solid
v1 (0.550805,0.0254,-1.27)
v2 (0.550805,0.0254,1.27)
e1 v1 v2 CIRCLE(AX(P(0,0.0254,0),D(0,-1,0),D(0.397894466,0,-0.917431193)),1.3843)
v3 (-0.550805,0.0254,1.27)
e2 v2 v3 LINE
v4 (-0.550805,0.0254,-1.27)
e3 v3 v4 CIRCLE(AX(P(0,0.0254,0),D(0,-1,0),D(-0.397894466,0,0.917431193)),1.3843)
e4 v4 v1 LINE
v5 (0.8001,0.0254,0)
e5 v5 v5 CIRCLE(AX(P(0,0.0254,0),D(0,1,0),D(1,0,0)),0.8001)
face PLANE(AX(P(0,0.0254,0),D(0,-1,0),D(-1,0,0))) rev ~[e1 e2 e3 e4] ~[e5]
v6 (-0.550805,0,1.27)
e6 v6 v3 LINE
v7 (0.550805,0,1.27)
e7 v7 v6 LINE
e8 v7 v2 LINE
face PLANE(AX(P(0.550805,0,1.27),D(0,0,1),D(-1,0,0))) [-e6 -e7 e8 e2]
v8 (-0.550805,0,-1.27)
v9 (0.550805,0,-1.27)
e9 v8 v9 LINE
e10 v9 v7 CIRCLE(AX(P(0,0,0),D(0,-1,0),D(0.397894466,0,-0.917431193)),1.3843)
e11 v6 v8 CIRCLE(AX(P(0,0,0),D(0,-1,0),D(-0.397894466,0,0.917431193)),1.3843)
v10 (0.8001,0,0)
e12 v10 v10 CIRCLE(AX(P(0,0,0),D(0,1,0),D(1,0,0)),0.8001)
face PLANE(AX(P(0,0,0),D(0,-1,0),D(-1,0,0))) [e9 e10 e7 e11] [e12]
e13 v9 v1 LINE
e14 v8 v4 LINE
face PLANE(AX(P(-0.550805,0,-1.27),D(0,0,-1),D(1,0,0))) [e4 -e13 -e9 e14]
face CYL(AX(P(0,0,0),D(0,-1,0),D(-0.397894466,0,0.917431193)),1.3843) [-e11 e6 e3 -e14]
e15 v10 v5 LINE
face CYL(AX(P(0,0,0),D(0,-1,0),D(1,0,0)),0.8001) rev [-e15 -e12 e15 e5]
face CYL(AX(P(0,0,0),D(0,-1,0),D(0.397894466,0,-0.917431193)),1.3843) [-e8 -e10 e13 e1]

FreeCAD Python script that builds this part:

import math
import FreeCAD as App
import Part
import Sketcher
from FreeCAD import Vector
Q = App.Units.Quantity

doc = App.newDocument("Part")
body = doc.addObject("PartDesign::Body", "Body")

sketch1 = body.newObject("Sketcher::SketchObject", "Sketch")
sketch1.AttachmentSupport = (doc.getObject("XZ_Plane"), [""])
sketch1.MapMode = "FlatFace"
sketch1.addGeometry([
    Part.LineSegment(Vector(0.6, -1.3, 0), Vector(-0.6, -1.3, 0)),
    Part.ArcOfCircle(Part.Circle(Vector(0, 0, 0), Vector(0, 0, 1), 1.4), math.radians(113), math.radians(247)),
    Part.LineSegment(Vector(-0.6, 1.3, 0), Vector(0.6, 1.3, 0)),
    Part.ArcOfCircle(Part.Circle(Vector(0, 0, 0), Vector(0, 0, 1), 1.4), math.radians(-67), math.radians(67)),
    Part.Circle(Vector(0, 0, 0), Vector(0, 0, 1), 0.8),
], False)
sketch1.addConstraint([
    Sketcher.Constraint("Coincident", 0, 2, 1, 2),
    Sketcher.Constraint("Coincident", 1, 1, 2, 1),
    Sketcher.Constraint("Coincident", 2, 2, 3, 2),
    Sketcher.Constraint("Coincident", 3, 1, 0, 1),
    Sketcher.Constraint("Horizontal", 0),
    Sketcher.Constraint("Horizontal", 2),
    Sketcher.Constraint("Coincident", 1, 3, -1, 1),
    Sketcher.Constraint("Coincident", 3, 3, -1, 1),
    Sketcher.Constraint("Coincident", 4, 3, -1, 1),
    Sketcher.Constraint("Equal", 1, 3),
    Sketcher.Constraint("Vertical", 0, 2, 1, 1),
    Sketcher.Constraint("Diameter", 4, Q("0.063 in")),
    Sketcher.Constraint("Radius", 1, Q("0.0545 in")),
    Sketcher.Constraint("DistanceY", 0, 2, 1, 1, Q("0.1 in")),
])
pad1 = body.newObject("PartDesign::Pad", "Pad")
pad1.Profile = sketch1
pad1.Length = Q("0.001 in")
pad1.Reversed = True

doc.recompute()
